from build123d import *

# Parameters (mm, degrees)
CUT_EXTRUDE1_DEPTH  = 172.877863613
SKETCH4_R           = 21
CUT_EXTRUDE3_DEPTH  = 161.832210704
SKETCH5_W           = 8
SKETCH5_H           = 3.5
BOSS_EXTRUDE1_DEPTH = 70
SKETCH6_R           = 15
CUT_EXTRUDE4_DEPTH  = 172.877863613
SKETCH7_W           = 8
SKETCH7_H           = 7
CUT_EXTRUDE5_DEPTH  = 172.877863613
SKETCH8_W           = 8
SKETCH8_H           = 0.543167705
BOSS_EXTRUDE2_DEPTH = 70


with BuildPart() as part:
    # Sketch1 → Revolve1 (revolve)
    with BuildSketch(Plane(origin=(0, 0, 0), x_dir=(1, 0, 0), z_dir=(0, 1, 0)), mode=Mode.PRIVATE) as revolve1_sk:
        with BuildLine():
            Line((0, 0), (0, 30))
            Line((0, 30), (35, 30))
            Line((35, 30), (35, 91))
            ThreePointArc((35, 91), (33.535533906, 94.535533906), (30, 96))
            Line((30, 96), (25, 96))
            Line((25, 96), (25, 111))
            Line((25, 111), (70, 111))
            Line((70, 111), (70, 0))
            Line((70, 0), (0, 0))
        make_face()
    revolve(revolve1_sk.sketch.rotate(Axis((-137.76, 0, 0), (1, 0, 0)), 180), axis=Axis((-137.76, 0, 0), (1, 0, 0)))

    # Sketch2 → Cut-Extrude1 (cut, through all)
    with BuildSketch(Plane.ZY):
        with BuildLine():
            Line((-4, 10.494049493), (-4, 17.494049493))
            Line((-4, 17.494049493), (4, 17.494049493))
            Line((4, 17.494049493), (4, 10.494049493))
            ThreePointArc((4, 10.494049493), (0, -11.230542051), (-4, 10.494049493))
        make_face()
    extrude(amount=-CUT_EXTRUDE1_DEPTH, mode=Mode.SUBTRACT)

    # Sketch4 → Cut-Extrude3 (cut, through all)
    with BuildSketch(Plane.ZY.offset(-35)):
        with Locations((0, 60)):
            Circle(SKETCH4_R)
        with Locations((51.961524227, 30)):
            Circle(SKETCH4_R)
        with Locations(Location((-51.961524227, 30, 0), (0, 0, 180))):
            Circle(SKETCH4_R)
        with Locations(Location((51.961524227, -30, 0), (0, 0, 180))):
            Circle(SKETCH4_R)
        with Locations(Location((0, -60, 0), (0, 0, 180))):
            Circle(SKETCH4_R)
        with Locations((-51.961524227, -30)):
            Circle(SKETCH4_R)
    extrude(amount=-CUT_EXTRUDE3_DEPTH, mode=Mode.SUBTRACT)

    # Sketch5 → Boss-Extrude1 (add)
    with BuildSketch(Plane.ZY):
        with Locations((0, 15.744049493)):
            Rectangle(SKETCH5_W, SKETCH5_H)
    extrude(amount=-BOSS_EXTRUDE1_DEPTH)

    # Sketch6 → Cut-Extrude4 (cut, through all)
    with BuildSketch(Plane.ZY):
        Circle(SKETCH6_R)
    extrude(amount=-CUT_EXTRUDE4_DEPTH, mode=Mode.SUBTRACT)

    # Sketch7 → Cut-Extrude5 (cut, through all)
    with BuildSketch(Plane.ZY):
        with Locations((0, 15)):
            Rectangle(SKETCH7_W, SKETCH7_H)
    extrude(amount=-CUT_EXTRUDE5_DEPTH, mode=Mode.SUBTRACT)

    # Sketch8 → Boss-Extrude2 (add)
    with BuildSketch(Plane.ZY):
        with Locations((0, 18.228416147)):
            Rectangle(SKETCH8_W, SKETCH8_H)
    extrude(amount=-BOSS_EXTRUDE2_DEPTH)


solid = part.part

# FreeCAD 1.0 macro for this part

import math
import FreeCAD as App
import Part
import Sketcher
from FreeCAD import Vector


def add_polygon(sketch, points):
    """Adds a closed chain of lines whose ends are joined by coincident constraints."""
    first, n = sketch.GeometryCount, len(points)
    for a, b in zip(points, points[1:] + points[:1]):
        sketch.addGeometry(Part.LineSegment(App.Vector(*a, 0), App.Vector(*b, 0)), False)
    for i in range(n):
        sketch.addConstraint(Sketcher.Constraint("Coincident", first + i, 2, first + (i + 1) % n, 1))

doc = App.newDocument("Part")
body = doc.addObject("PartDesign::Body", "Body")

# Sketch on XZ plane
sketch1 = doc.addObject("Sketcher::SketchObject", "Sketch")
body.addObject(sketch1)
sketch1.AttachmentSupport = (doc.XZ_Plane, [""])
sketch1.MapMode = "FlatFace"
sketch1.addGeometry(Part.LineSegment(Vector(0, -30, 0), Vector(0, 0, 0)), False)
sketch1.addGeometry(Part.LineSegment(Vector(0, 0, 0), Vector(70, 0, 0)), False)
sketch1.addGeometry(Part.LineSegment(Vector(70, 0, 0), Vector(70, -111, 0)), False)
sketch1.addGeometry(Part.LineSegment(Vector(70, -111, 0), Vector(25, -111, 0)), False)
sketch1.addGeometry(Part.LineSegment(Vector(25, -111, 0), Vector(25, -96, 0)), False)
sketch1.addGeometry(Part.LineSegment(Vector(25, -96, 0), Vector(30, -96, 0)), False)
sketch1.addGeometry(Part.ArcOfCircle(Part.Circle(Vector(30, -91, 0), Vector(0, 0, 1), 5), math.radians(-90), math.radians(0)), False)
sketch1.addGeometry(Part.LineSegment(Vector(35, -91, 0), Vector(35, -30, 0)), False)
sketch1.addGeometry(Part.LineSegment(Vector(35, -30, 0), Vector(0, -30, 0)), False)
sketch1.addConstraint(Sketcher.Constraint("Coincident", 0, 2, 1, 1))
sketch1.addConstraint(Sketcher.Constraint("Coincident", 1, 2, 2, 1))
sketch1.addConstraint(Sketcher.Constraint("Coincident", 2, 2, 3, 1))
sketch1.addConstraint(Sketcher.Constraint("Coincident", 3, 2, 4, 1))
sketch1.addConstraint(Sketcher.Constraint("Coincident", 4, 2, 5, 1))
sketch1.addConstraint(Sketcher.Constraint("Tangent", 5, 2, 6, 1))
sketch1.addConstraint(Sketcher.Constraint("Tangent", 6, 2, 7, 1))
sketch1.addConstraint(Sketcher.Constraint("Coincident", 7, 2, 8, 1))
sketch1.addConstraint(Sketcher.Constraint("Coincident", 8, 2, 0, 1))
sketch1.addConstraint(Sketcher.Constraint("Vertical", 0))
sketch1.addConstraint(Sketcher.Constraint("Horizontal", 1))
sketch1.addConstraint(Sketcher.Constraint("Vertical", 2))
sketch1.addConstraint(Sketcher.Constraint("Horizontal", 3))
sketch1.addConstraint(Sketcher.Constraint("Vertical", 4))
sketch1.addConstraint(Sketcher.Constraint("Horizontal", 5))
sketch1.addConstraint(Sketcher.Constraint("Vertical", 7))
sketch1.addConstraint(Sketcher.Constraint("Horizontal", 8))
sketch1.addConstraint(Sketcher.Constraint("Coincident", 0, 2, -1, 1))
sketch1.addConstraint(Sketcher.Constraint("Radius", 6, 5.0))
sketch1.addConstraint(Sketcher.Constraint("DistanceX", 1, 1, 1, 2, 70.0))
sketch1.addConstraint(Sketcher.Constraint("DistanceX", 3, 2, 3, 1, 45.0))
sketch1.addConstraint(Sketcher.Constraint("DistanceX", 5, 1, 5, 2, 5.0))
sketch1.addConstraint(Sketcher.Constraint("DistanceY", 0, 1, 0, 2, 30.0))
sketch1.addConstraint(Sketcher.Constraint("DistanceY", 2, 2, 2, 1, 111.0))
sketch1.addConstraint(Sketcher.Constraint("DistanceY", 4, 1, 4, 2, 15.0))
revolution = doc.addObject("PartDesign::Revolution", "Revolution")
body.addObject(revolution)
revolution.Profile = sketch1
revolution.ReferenceAxis = (sketch1, ["H_Axis"])
revolution.Angle = 360

# Sketch on YZ plane
sketch2 = doc.addObject("Sketcher::SketchObject", "Sketch001")
body.addObject(sketch2)
sketch2.AttachmentSupport = (doc.YZ_Plane, [""])
sketch2.MapMode = "FlatFace"
sketch2.addGeometry(Part.LineSegment(Vector(17, -4, 0), Vector(10, -4, 0)), False)
sketch2.addGeometry(Part.ArcOfCircle(Part.Circle(Vector(0, 0, 0), Vector(0, 0, 1), 11), math.radians(21), math.radians(339)), False)
sketch2.addGeometry(Part.LineSegment(Vector(10, 4, 0), Vector(17, 4, 0)), False)
sketch2.addGeometry(Part.LineSegment(Vector(17, 4, 0), Vector(17, -4, 0)), False)
sketch2.addConstraint(Sketcher.Constraint("Coincident", 0, 2, 1, 2))
sketch2.addConstraint(Sketcher.Constraint("Coincident", 1, 1, 2, 1))
sketch2.addConstraint(Sketcher.Constraint("Coincident", 2, 2, 3, 1))
sketch2.addConstraint(Sketcher.Constraint("Coincident", 3, 2, 0, 1))
sketch2.addConstraint(Sketcher.Constraint("Horizontal", 0))
sketch2.addConstraint(Sketcher.Constraint("Horizontal", 2))
sketch2.addConstraint(Sketcher.Constraint("Vertical", 3))
sketch2.addConstraint(Sketcher.Constraint("Coincident", 1, 3, -1, 1))
sketch2.addConstraint(Sketcher.Constraint("Vertical", 0, 2, 1, 1))
sketch2.addConstraint(Sketcher.Constraint("DistanceX", 0, 2, 0, 1, 7.0))
sketch2.addConstraint(Sketcher.Constraint("DistanceY", 3, 2, 3, 1, 8.0))
sketch2.addConstraint(Sketcher.Constraint("Radius", 1, 11.230542))
pocket1 = doc.addObject("PartDesign::Pocket", "Pocket")
body.addObject(pocket1)
pocket1.Profile = sketch2
pocket1.Type = "ThroughAll"
pocket1.Reversed = True

# Sketch on YZ plane
sketch3 = doc.addObject("Sketcher::SketchObject", "Sketch002")
body.addObject(sketch3)
sketch3.AttachmentSupport = (doc.YZ_Plane, [""])
sketch3.MapMode = "FlatFace"
sketch3.AttachmentOffset = App.Placement(Vector(0, 0, 35), App.Rotation())
sketch3.addGeometry(Part.Circle(Vector(60, 0, 0), Vector(0, 0, 1), 21), False)
sketch3.addGeometry(Part.Circle(Vector(30, 52, 0), Vector(0, 0, 1), 21), False)
sketch3.addGeometry(Part.Circle(Vector(30, -52, 0), Vector(0, 0, 1), 21), False)
sketch3.addGeometry(Part.Circle(Vector(-30, 52, 0), Vector(0, 0, 1), 21), False)
sketch3.addGeometry(Part.Circle(Vector(-60, 0, 0), Vector(0, 0, 1), 21), False)
sketch3.addGeometry(Part.Circle(Vector(-30, -52, 0), Vector(0, 0, 1), 21), False)
sketch3.addConstraint(Sketcher.Constraint("Equal", 0, 1))
sketch3.addConstraint(Sketcher.Constraint("Equal", 1, 2))
sketch3.addConstraint(Sketcher.Constraint("Equal", 2, 3))
sketch3.addConstraint(Sketcher.Constraint("Equal", 3, 4))
sketch3.addConstraint(Sketcher.Constraint("Equal", 4, 5))
sketch3.addConstraint(Sketcher.Constraint("Symmetric", 2, 3, 3, 3, -1, 1))
sketch3.addConstraint(Sketcher.Constraint("Symmetric", 0, 3, 4, 3, -1, 1))
sketch3.addConstraint(Sketcher.Constraint("Symmetric", 1, 3, 5, 3, -1, 1))
sketch3.addConstraint(Sketcher.Constraint("Symmetric", 1, 3, 3, 3, -2))
sketch3.addConstraint(Sketcher.Constraint("PointOnObject", 0, 3, -1))
sketch3.addConstraint(Sketcher.Constraint("Diameter", 0, 42.0))
sketch3.addConstraint(Sketcher.Constraint("DistanceX", -1, 1, 0, 3, 60.0))
sketch3.addConstraint(Sketcher.Constraint("DistanceX", -1, 1, 1, 3, 30.0))
sketch3.addConstraint(Sketcher.Constraint("DistanceY", 2, 3, 1, 3, 103.923048))
pocket2 = doc.addObject("PartDesign::Pocket", "Pocket001")
body.addObject(pocket2)
pocket2.Profile = sketch3
pocket2.Type = "ThroughAll"
pocket2.Reversed = True

# Sketch on YZ plane
sketch4 = doc.addObject("Sketcher::SketchObject", "Sketch003")
body.addObject(sketch4)
sketch4.AttachmentSupport = (doc.YZ_Plane, [""])
sketch4.MapMode = "FlatFace"
add_polygon(sketch4, [(17.5, -4), (14, -4), (14, 4), (17.5, 4)])  # lines 0-3
sketch4.addConstraint(Sketcher.Constraint("Horizontal", 0))
sketch4.addConstraint(Sketcher.Constraint("Vertical", 1))
sketch4.addConstraint(Sketcher.Constraint("Horizontal", 2))
sketch4.addConstraint(Sketcher.Constraint("Vertical", 3))
sketch4.addConstraint(Sketcher.Constraint("DistanceY", 1, 1, 1, 2, 8.0))
sketch4.addConstraint(Sketcher.Constraint("DistanceX", 0, 2, 0, 1, 3.5))
sketch4.addConstraint(Sketcher.Constraint("DistanceY", 0, 2, -1, 1, 4.0))
sketch4.addConstraint(Sketcher.Constraint("DistanceX", -1, 1, 0, 2, 13.994049))
pad1 = doc.addObject("PartDesign::Pad", "Pad")
body.addObject(pad1)
pad1.Profile = sketch4
pad1.Length = 70

# Sketch on YZ plane
sketch5 = doc.addObject("Sketcher::SketchObject", "Sketch004")
body.addObject(sketch5)
sketch5.AttachmentSupport = (doc.YZ_Plane, [""])
sketch5.MapMode = "FlatFace"
sketch5.addGeometry(Part.Circle(Vector(0, 0, 0), Vector(0, 0, 1), 15), False)
sketch5.addConstraint(Sketcher.Constraint("Coincident", 0, 3, -1, 1))
sketch5.addConstraint(Sketcher.Constraint("Diameter", 0, 30.0))
pocket3 = doc.addObject("PartDesign::Pocket", "Pocket002")
body.addObject(pocket3)
pocket3.Profile = sketch5
pocket3.Type = "ThroughAll"
pocket3.Reversed = True

# Sketch on YZ plane
sketch6 = doc.addObject("Sketcher::SketchObject", "Sketch005")
body.addObject(sketch6)
sketch6.AttachmentSupport = (doc.YZ_Plane, [""])
sketch6.MapMode = "FlatFace"
add_polygon(sketch6, [(18, -4), (12, -4), (12, 4), (18, 4)])  # lines 0-3
sketch6.addConstraint(Sketcher.Constraint("Horizontal", 0))
sketch6.addConstraint(Sketcher.Constraint("Vertical", 1))
sketch6.addConstraint(Sketcher.Constraint("Horizontal", 2))
sketch6.addConstraint(Sketcher.Constraint("Vertical", 3))
sketch6.addConstraint(Sketcher.Constraint("DistanceX", 0, 2, 0, 1, 7.0))
sketch6.addConstraint(Sketcher.Constraint("DistanceY", 1, 1, 1, 2, 8.0))
sketch6.addConstraint(Sketcher.Constraint("DistanceY", 0, 2, -1, 1, 4.0))
sketch6.addConstraint(Sketcher.Constraint("DistanceX", -1, 1, 0, 2, 11.5))
pocket4 = doc.addObject("PartDesign::Pocket", "Pocket003")
body.addObject(pocket4)
pocket4.Profile = sketch6
pocket4.Type = "ThroughAll"
pocket4.Reversed = True

# Sketch on YZ plane
sketch7 = doc.addObject("Sketcher::SketchObject", "Sketch006")
body.addObject(sketch7)
sketch7.AttachmentSupport = (doc.YZ_Plane, [""])
sketch7.MapMode = "FlatFace"
add_polygon(sketch7, [(18.5, -4), (18, -4), (18, 4), (18.5, 4)])  # lines 0-3
sketch7.addConstraint(Sketcher.Constraint("Horizontal", 0))
sketch7.addConstraint(Sketcher.Constraint("Vertical", 1))
sketch7.addConstraint(Sketcher.Constraint("Horizontal", 2))
sketch7.addConstraint(Sketcher.Constraint("Vertical", 3))
sketch7.addConstraint(Sketcher.Constraint("DistanceY", 1, 1, 1, 2, 8.0))
sketch7.addConstraint(Sketcher.Constraint("DistanceY", 0, 2, -1, 1, 4.0))
sketch7.addConstraint(Sketcher.Constraint("DistanceX", -1, 1, 2, 2, 18.5))
sketch7.addConstraint(Sketcher.Constraint("DistanceX", 0, 2, 0, 1, 0.543168))
pad2 = doc.addObject("PartDesign::Pad", "Pad001")
body.addObject(pad2)
pad2.Profile = sketch7
pad2.Length = 70

doc.recompute()
